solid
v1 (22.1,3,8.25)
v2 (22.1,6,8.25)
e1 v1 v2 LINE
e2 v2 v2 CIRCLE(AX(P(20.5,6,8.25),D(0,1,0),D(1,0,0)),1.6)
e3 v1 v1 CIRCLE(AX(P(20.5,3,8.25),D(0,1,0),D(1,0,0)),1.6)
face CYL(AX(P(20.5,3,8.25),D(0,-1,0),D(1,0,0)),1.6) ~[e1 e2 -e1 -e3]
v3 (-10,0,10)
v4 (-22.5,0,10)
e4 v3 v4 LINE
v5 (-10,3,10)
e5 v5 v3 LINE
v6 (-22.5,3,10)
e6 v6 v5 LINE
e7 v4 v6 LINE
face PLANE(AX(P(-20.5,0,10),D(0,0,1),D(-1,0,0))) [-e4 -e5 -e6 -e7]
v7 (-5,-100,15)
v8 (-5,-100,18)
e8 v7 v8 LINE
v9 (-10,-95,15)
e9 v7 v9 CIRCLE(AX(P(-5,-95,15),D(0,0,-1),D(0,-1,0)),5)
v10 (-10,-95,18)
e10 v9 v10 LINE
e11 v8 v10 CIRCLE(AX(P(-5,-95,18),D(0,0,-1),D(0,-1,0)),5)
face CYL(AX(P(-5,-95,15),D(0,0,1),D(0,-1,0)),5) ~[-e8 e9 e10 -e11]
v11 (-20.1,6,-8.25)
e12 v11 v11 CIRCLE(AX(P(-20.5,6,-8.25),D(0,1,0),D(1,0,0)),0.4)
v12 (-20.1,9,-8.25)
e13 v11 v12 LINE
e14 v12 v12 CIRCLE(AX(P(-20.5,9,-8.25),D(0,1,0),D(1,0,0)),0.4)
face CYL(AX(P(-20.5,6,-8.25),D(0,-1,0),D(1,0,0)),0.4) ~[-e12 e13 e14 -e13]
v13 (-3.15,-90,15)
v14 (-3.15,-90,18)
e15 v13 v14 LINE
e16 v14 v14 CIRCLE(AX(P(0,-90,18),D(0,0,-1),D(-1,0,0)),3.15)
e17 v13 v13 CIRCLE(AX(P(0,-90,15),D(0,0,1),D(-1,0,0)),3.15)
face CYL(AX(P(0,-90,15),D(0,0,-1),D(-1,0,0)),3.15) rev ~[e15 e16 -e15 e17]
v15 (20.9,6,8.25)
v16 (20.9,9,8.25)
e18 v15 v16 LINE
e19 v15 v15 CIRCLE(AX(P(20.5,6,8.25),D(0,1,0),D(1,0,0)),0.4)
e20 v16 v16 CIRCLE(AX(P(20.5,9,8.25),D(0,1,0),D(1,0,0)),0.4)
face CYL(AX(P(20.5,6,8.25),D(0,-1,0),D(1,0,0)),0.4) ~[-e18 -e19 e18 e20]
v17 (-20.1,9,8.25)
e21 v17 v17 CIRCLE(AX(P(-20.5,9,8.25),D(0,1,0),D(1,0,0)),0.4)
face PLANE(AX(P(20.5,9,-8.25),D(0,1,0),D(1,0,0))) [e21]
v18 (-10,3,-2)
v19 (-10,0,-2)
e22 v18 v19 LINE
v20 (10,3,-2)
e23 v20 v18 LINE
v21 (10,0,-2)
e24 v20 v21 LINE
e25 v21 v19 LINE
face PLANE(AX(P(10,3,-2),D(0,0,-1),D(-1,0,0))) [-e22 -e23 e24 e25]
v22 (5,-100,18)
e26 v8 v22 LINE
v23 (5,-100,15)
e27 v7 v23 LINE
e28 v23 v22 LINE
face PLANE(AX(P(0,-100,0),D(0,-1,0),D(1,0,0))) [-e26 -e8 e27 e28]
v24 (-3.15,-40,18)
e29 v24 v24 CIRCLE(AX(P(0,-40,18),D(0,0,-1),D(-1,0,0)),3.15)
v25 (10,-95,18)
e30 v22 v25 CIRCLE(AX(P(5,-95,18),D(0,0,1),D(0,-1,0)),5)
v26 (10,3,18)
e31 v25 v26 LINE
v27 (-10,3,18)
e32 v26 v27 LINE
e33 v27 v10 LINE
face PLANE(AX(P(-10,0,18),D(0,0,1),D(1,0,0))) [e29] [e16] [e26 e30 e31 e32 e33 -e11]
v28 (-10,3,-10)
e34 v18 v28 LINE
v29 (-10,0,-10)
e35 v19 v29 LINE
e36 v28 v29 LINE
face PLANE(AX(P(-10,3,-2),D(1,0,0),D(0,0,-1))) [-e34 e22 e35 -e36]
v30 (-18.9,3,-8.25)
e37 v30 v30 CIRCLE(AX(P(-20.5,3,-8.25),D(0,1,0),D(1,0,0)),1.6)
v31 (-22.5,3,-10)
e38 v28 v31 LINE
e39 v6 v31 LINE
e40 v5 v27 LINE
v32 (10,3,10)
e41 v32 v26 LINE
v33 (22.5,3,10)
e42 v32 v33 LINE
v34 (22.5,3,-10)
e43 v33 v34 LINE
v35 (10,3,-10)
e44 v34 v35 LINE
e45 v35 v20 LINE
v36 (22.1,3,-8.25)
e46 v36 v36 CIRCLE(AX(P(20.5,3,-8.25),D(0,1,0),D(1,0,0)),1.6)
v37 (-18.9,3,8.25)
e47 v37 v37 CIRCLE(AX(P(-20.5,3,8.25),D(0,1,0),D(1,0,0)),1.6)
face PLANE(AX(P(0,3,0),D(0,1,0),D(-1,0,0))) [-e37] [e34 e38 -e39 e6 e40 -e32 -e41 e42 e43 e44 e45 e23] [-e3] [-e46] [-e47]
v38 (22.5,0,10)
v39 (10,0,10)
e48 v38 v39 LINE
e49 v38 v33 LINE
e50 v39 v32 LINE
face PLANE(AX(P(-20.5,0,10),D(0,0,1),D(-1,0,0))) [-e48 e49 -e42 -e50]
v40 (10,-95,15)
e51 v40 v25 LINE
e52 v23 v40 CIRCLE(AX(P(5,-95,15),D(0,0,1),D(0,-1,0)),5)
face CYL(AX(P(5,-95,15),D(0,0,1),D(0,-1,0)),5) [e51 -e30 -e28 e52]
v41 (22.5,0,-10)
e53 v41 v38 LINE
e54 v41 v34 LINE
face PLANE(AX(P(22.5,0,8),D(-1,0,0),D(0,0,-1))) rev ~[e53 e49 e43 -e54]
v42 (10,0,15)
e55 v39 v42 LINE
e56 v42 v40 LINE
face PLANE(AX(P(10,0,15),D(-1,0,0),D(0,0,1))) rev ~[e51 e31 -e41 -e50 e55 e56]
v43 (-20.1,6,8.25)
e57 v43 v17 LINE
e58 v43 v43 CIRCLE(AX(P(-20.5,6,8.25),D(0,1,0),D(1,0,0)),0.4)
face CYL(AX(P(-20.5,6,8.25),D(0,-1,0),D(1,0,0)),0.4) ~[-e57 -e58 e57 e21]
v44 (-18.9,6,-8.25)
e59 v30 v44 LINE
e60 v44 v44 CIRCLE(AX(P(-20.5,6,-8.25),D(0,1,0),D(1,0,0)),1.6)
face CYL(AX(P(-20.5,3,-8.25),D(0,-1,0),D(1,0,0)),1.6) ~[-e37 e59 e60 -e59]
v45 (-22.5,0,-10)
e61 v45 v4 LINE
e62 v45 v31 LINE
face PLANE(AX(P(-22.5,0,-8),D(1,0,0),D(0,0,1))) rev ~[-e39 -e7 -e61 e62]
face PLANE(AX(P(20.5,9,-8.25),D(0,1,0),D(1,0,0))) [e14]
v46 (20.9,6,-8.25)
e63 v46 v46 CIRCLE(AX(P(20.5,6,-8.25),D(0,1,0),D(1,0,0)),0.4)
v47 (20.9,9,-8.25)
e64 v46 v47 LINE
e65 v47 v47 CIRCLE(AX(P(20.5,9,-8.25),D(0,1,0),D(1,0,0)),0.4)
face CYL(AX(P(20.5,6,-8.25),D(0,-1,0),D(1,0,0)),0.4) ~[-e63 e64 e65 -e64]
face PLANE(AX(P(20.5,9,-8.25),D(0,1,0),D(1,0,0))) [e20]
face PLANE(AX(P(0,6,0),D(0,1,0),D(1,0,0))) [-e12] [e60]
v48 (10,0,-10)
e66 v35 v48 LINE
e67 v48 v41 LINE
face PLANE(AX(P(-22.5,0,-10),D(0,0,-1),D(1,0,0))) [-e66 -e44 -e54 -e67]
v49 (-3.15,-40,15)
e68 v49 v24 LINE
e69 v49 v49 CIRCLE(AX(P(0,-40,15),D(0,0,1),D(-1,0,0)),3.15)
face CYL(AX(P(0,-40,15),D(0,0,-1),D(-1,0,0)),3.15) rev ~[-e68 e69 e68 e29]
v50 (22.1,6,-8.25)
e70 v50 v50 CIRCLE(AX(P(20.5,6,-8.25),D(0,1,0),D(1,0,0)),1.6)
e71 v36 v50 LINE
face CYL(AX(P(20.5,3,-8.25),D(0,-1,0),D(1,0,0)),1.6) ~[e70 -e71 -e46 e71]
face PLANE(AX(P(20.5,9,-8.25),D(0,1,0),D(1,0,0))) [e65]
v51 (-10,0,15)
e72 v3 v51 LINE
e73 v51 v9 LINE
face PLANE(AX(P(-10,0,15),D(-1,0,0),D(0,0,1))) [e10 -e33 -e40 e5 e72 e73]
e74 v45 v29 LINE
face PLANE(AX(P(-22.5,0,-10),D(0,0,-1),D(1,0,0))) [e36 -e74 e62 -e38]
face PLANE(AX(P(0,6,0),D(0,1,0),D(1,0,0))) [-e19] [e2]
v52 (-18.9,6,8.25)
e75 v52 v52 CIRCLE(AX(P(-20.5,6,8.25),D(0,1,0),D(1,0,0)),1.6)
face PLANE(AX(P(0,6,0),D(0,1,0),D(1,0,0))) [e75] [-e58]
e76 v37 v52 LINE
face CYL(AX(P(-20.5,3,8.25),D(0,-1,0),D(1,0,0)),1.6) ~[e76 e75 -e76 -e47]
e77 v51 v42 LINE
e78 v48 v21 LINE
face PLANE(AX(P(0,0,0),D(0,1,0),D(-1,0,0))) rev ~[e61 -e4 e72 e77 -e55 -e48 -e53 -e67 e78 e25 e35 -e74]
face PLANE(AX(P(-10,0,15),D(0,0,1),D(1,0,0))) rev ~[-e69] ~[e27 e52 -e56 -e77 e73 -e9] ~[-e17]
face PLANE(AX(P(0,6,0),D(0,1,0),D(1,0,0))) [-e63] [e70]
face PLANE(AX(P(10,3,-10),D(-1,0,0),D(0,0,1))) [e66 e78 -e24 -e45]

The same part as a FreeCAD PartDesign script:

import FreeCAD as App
import Part
import Sketcher
from FreeCAD import Vector
Q = App.Units.Quantity


def edges_at(feature, points):
    """Names of the edges that pass closest to the given points."""
    edges = feature.Shape.Edges
    near = lambda p: min(range(len(edges)), key=lambda i: edges[i].distToShape(Part.Vertex(*p))[0])
    return sorted({f"Edge{near(p) + 1}" for p in points})


def add_polygon(sketch, points):
    """Adds a closed chain of lines whose ends are joined by coincident constraints."""
    first, n = sketch.GeometryCount, len(points)
    for a, b in zip(points, points[1:] + points[:1]):
        sketch.addGeometry(Part.LineSegment(App.Vector(*a, 0), App.Vector(*b, 0)), False)
    for i in range(n):
        sketch.addConstraint(Sketcher.Constraint("Coincident", first + i, 2, first + (i + 1) % n, 1))

doc = App.newDocument("Part")
body = doc.addObject("PartDesign::Body", "Body")

sketch1 = body.newObject("Sketcher::SketchObject", "Sketch")
sketch1.AttachmentSupport = (doc.getObject("XZ_Plane"), [""])
sketch1.MapMode = "FlatFace"
add_polygon(sketch1, [(-22.5, 10), (22.5, 10), (22.5, -10), (-22.5, -10)])
sketch1.addGeometry(Part.Circle(Vector(20.5, 8.2, 0), Vector(0, 0, 1), 1.1), False)
sketch1.addGeometry(Part.Circle(Vector(20.5, -8.2, 0), Vector(0, 0, 1), 1.1), False)
sketch1.addGeometry(Part.Circle(Vector(-20.5, -8.2, 0), Vector(0, 0, 1), 1.1), False)
sketch1.addGeometry(Part.Circle(Vector(-20.5, 8.2, 0), Vector(0, 0, 1), 1.1), False)
sketch1.addConstraint([
    Sketcher.Constraint("Horizontal", 0),
    Sketcher.Constraint("Vertical", 1),
    Sketcher.Constraint("Horizontal", 2),
    Sketcher.Constraint("Vertical", 3),
    Sketcher.Constraint("Equal", 4, 5),
    Sketcher.Constraint("Equal", 5, 6),
    Sketcher.Constraint("Equal", 6, 7),
    Sketcher.Constraint("Symmetric", 4, 3, 6, 3, -1, 1),
    Sketcher.Constraint("Symmetric", 5, 3, 7, 3, -1, 1),
    Sketcher.Constraint("Symmetric", 0, 2, 2, 2, -1, 1),
    Sketcher.Constraint("Symmetric", 5, 3, 6, 3, -2),
    Sketcher.Constraint("Diameter", 4, Q("2.2 mm")),
    Sketcher.Constraint("DistanceX", 0, 1, 0, 2, Q("45 mm")),
    Sketcher.Constraint("DistanceY", 1, 2, 1, 1, Q("20 mm")),
    Sketcher.Constraint("DistanceX", 6, 3, 5, 3, Q("41 mm")),
    Sketcher.Constraint("DistanceY", 5, 3, 4, 3, Q("16.5 mm")),
])
pad1 = body.newObject("PartDesign::Pad", "Pad")
pad1.Profile = sketch1
pad1.Length = 3
pad1.Reversed = True

sketch2 = body.newObject("Sketcher::SketchObject", "Sketch001")
sketch2.AttachmentSupport = (doc.getObject("XY_Plane"), [""])
sketch2.MapMode = "FlatFace"
sketch2.AttachmentOffset = App.Placement(Vector(0, 0, 10), App.Rotation())
add_polygon(sketch2, [(10, 0), (10, 3), (-10, 3), (-10, 0)])
sketch2.addConstraint([
    Sketcher.Constraint("Vertical", 0),
    Sketcher.Constraint("Horizontal", 1),
    Sketcher.Constraint("Vertical", 2),
    Sketcher.Constraint("Horizontal", 3),
    Sketcher.Constraint("Symmetric", 2, 2, 3, 2, -1, 1),
    Sketcher.Constraint("DistanceX", 1, 2, 1, 1, Q("20 mm")),
    Sketcher.Constraint("DistanceY", 0, 1, 0, 2, Q("3 mm")),
])
pad2 = body.newObject("PartDesign::Pad", "Pad001")
pad2.Profile = sketch2
pad2.Length = 8

sketch3 = body.newObject("Sketcher::SketchObject", "Sketch002")
sketch3.AttachmentSupport = (doc.getObject("XZ_Plane"), [""])
sketch3.MapMode = "FlatFace"
add_polygon(sketch3, [(10, 18), (-10, 18), (-10, 15), (10, 15)])
sketch3.addConstraint([
    Sketcher.Constraint("Horizontal", 0),
    Sketcher.Constraint("Vertical", 1),
    Sketcher.Constraint("Horizontal", 2),
    Sketcher.Constraint("Vertical", 3),
    Sketcher.Constraint("DistanceY", 1, 2, 1, 1, Q("3 mm")),
    Sketcher.Constraint("DistanceX", 0, 2, 0, 1, Q("20 mm")),
    Sketcher.Constraint("DistanceX", 0, 2, -1, 1, Q("10 mm")),
    Sketcher.Constraint("DistanceY", -1, 1, 0, 2, Q("18 mm")),
])
pad3 = body.newObject("PartDesign::Pad", "Pad002")
pad3.Profile = sketch3
pad3.Length = 100

sketch4 = body.newObject("Sketcher::SketchObject", "Sketch003")
sketch4.AttachmentSupport = (doc.getObject("XY_Plane"), [""])
sketch4.MapMode = "FlatFace"
sketch4.AttachmentOffset = App.Placement(Vector(0, 0, 15), App.Rotation())
sketch4.addGeometry([
    Part.Circle(Vector(0, -90, 0), Vector(0, 0, 1), 3.1),
    Part.Circle(Vector(0, -40, 0), Vector(0, 0, 1), 3.1),
], False)
sketch4.addConstraint([
    Sketcher.Constraint("Equal", 0, 1),
    Sketcher.Constraint("PointOnObject", 0, 3, -2),
    Sketcher.Constraint("PointOnObject", 1, 3, -2),
    Sketcher.Constraint("Diameter", 0, Q("6.3 mm")),
    Sketcher.Constraint("DistanceY", 0, 3, 1, 3, Q("50 mm")),
    Sketcher.Constraint("DistanceY", 0, 3, -1, 1, Q("90 mm")),
])
pocket1 = body.newObject("PartDesign::Pocket", "Pocket")
pocket1.Profile = sketch4
pocket1.Length = 100
pocket1.Reversed = True

sketch5 = body.newObject("Sketcher::SketchObject", "Sketch004")
sketch5.AttachmentSupport = (doc.getObject("XZ_Plane"), [""])
sketch5.MapMode = "FlatFace"
sketch5.AttachmentOffset = App.Placement(Vector(0, 0, -3), App.Rotation())
sketch5.addGeometry([
    Part.Circle(Vector(-20.5, -8.2, 0), Vector(0, 0, 1), 1.6),
    Part.Circle(Vector(-20.5, -8.2, 0), Vector(0, 0, 1), 1.1),
    Part.Circle(Vector(20.5, -8.2, 0), Vector(0, 0, 1), 1.6),
    Part.Circle(Vector(20.5, -8.2, 0), Vector(0, 0, 1), 1.1),
    Part.Circle(Vector(-20.5, 8.2, 0), Vector(0, 0, 1), 1.6),
    Part.Circle(Vector(-20.5, 8.2, 0), Vector(0, 0, 1), 1.1),
    Part.Circle(Vector(20.5, 8.2, 0), Vector(0, 0, 1), 1.6),
    Part.Circle(Vector(20.5, 8.2, 0), Vector(0, 0, 1), 1.1),
], False)
sketch5.addConstraint([
    Sketcher.Constraint("Coincident", 1, 3, 0, 3),
    Sketcher.Constraint("Coincident", 3, 3, 2, 3),
    Sketcher.Constraint("Coincident", 5, 3, 4, 3),
    Sketcher.Constraint("Coincident", 7, 3, 6, 3),
    Sketcher.Constraint("Equal", 0, 2),
    Sketcher.Constraint("Equal", 1, 3),
    Sketcher.Constraint("Equal", 2, 4),
    Sketcher.Constraint("Equal", 3, 5),
    Sketcher.Constraint("Equal", 4, 6),
    Sketcher.Constraint("Equal", 5, 7),
    Sketcher.Constraint("Symmetric", 2, 3, 4, 3, -1, 1),
    Sketcher.Constraint("Symmetric", 0, 3, 6, 3, -1, 1),
    Sketcher.Constraint("Symmetric", 0, 3, 2, 3, -2),
    Sketcher.Constraint("Diameter", 0, Q("3.2 mm")),
    Sketcher.Constraint("Diameter", 1, Q("2.2 mm")),
    Sketcher.Constraint("DistanceX", 0, 3, 2, 3, Q("41 mm")),
    Sketcher.Constraint("DistanceY", 0, 3, 4, 3, Q("16.5 mm")),
])
pad4 = body.newObject("PartDesign::Pad", "Pad003")
pad4.Profile = sketch5
pad4.Length = 3
pad4.Reversed = True

sketch6 = body.newObject("Sketcher::SketchObject", "Sketch005")
sketch6.AttachmentSupport = (doc.getObject("XZ_Plane"), [""])
sketch6.MapMode = "FlatFace"
sketch6.AttachmentOffset = App.Placement(Vector(0, 0, -3), App.Rotation())
add_polygon(sketch6, [(10, -2), (10, -10), (-10, -10), (-10, -2)])
sketch6.addConstraint([
    Sketcher.Constraint("Vertical", 0),
    Sketcher.Constraint("Horizontal", 1),
    Sketcher.Constraint("Vertical", 2),
    Sketcher.Constraint("Horizontal", 3),
    Sketcher.Constraint("DistanceX", 1, 2, 1, 1, Q("20 mm")),
    Sketcher.Constraint("DistanceY", 0, 2, 0, 1, Q("8 mm")),
    Sketcher.Constraint("DistanceX", -1, 1, 0, 2, Q("10 mm")),
    Sketcher.Constraint("DistanceY", 0, 2, -1, 1, Q("10 mm")),
])
pocket2 = body.newObject("PartDesign::Pocket", "Pocket001")
pocket2.Profile = sketch6
pocket2.Length = 3
pocket2.Reversed = True
doc.recompute()

fillet = body.newObject("PartDesign::Fillet", "Fillet")
fillet.Base = (pocket2, edges_at(pocket2, [(-10, -100, 16.5), (10, -100, 16.5)]))
fillet.Radius = 5

sketch7 = body.newObject("Sketcher::SketchObject", "Sketch006")
sketch7.AttachmentSupport = (doc.getObject("XZ_Plane"), [""])
sketch7.MapMode = "FlatFace"
sketch7.AttachmentOffset = App.Placement(Vector(0, 0, -6), App.Rotation())
sketch7.addGeometry([
    Part.Circle(Vector(-20.5, -8.2, 0), Vector(0, 0, 1), 1.1),
    Part.Circle(Vector(-20.5, 8.2, 0), Vector(0, 0, 1), 1.1),
    Part.Circle(Vector(20.5, -8.2, 0), Vector(0, 0, 1), 1.1),
    Part.Circle(Vector(20.5, 8.2, 0), Vector(0, 0, 1), 1.1),
], False)
sketch7.addConstraint([
    Sketcher.Constraint("Equal", 0, 1),
    Sketcher.Constraint("Equal", 1, 2),
    Sketcher.Constraint("Equal", 2, 3),
    Sketcher.Constraint("Symmetric", 1, 3, 2, 3, -1, 1),
    Sketcher.Constraint("Symmetric", 0, 3, 3, 3, -1, 1),
    Sketcher.Constraint("Symmetric", 0, 3, 2, 3, -2),
    Sketcher.Constraint("Diameter", 0, Q("2.2 mm")),
    Sketcher.Constraint("DistanceX", 0, 3, 2, 3, Q("41 mm")),
    Sketcher.Constraint("DistanceY", 0, 3, 1, 3, Q("16.5 mm")),
])
pad5 = body.newObject("PartDesign::Pad", "Pad004")
pad5.Profile = sketch7
pad5.Length = 6

sketch8 = body.newObject("Sketcher::SketchObject", "Sketch007")
sketch8.AttachmentSupport = (doc.getObject("XZ_Plane"), [""])
sketch8.MapMode = "FlatFace"
sketch8.AttachmentOffset = App.Placement(Vector(0, 0, -6), App.Rotation())
sketch8.addGeometry([
    Part.Circle(Vector(-20.5, -8.25, 0), Vector(0, 0, 1), 0.4),
    Part.Circle(Vector(-20.5, 8.25, 0), Vector(0, 0, 1), 0.4),
    Part.Circle(Vector(20.5, -8.25, 0), Vector(0, 0, 1), 0.4),
    Part.Circle(Vector(20.5, 8.25, 0), Vector(0, 0, 1), 0.4),
], False)
sketch8.addConstraint([
    Sketcher.Constraint("Equal", 0, 1),
    Sketcher.Constraint("Equal", 1, 2),
    Sketcher.Constraint("Equal", 2, 3),
    Sketcher.Constraint("Symmetric", 1, 3, 2, 3, -1, 1),
    Sketcher.Constraint("Symmetric", 0, 3, 3, 3, -1, 1),
    Sketcher.Constraint("Symmetric", 0, 3, 2, 3, -2),
    Sketcher.Constraint("Diameter", 0, Q("0.8 mm")),
    Sketcher.Constraint("DistanceX", 0, 3, 2, 3, Q("41 mm")),
    Sketcher.Constraint("DistanceY", 0, 3, 1, 3, Q("16.5 mm")),
])
pad6 = body.newObject("PartDesign::Pad", "Pad005")
pad6.Profile = sketch8
pad6.Length = 3
pad6.Reversed = True

doc.recompute()
